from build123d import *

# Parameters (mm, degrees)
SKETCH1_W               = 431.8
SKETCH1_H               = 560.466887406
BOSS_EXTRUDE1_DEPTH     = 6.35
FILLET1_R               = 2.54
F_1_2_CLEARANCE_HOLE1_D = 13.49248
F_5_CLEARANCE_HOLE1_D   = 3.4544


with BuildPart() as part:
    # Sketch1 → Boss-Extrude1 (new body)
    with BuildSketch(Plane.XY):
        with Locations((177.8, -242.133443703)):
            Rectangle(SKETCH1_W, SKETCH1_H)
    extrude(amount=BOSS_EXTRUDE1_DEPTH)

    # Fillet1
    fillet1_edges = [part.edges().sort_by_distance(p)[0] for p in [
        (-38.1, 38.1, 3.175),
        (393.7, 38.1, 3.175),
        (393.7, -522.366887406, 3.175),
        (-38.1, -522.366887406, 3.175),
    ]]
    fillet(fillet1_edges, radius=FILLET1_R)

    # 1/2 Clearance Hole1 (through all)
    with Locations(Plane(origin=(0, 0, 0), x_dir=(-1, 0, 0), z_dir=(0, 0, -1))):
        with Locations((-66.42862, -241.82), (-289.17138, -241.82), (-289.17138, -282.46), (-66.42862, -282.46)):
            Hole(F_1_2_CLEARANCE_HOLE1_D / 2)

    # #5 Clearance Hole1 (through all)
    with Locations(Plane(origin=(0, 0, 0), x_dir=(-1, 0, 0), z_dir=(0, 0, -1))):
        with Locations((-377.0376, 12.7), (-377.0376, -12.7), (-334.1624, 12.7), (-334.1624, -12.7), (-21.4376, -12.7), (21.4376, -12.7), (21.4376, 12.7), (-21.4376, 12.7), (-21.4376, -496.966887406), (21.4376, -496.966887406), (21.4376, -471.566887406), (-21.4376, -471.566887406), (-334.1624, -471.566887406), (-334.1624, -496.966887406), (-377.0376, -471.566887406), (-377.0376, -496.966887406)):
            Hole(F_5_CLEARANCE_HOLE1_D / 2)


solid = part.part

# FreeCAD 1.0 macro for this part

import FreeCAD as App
import Part
import Sketcher
Q = App.Units.Quantity


def edges_at(feature, points):
    """Names of the edges that pass closest to the given points."""
    edges = feature.Shape.Edges
    near = lambda p: min(range(len(edges)), key=lambda i: edges[i].distToShape(Part.Vertex(*p))[0])
    return sorted({f"Edge{near(p) + 1}" for p in points})


def add_polygon(sketch, points):
    """Adds a closed chain of lines whose ends are joined by coincident constraints."""
    first, n = sketch.GeometryCount, len(points)
    for a, b in zip(points, points[1:] + points[:1]):
        sketch.addGeometry(Part.LineSegment(App.Vector(*a, 0), App.Vector(*b, 0)), False)
    for i in range(n):
        sketch.addConstraint(Sketcher.Constraint("Coincident", first + i, 2, first + (i + 1) % n, 1))

doc = App.newDocument("Part")
body = doc.addObject("PartDesign::Body", "Body")

sketch1 = body.newObject("Sketcher::SketchObject", "Sketch")
sketch1.AttachmentSupport = (doc.getObject("XY_Plane"), [""])
sketch1.MapMode = "FlatFace"
add_polygon(sketch1, [(-38, 38), (-38, -522), (394, -522), (394, 38)])
sketch1.addConstraint([
    Sketcher.Constraint("Vertical", 0),
    Sketcher.Constraint("Horizontal", 1),
    Sketcher.Constraint("Vertical", 2),
    Sketcher.Constraint("Horizontal", 3),
    Sketcher.Constraint("DistanceX", 1, 1, 1, 2, Q("17 in")),
    Sketcher.Constraint("DistanceX", 0, 2, -1, 1, Q("1.5 in")),
    Sketcher.Constraint("DistanceY", -1, 1, 2, 2, Q("1.5 in")),
    Sketcher.Constraint("DistanceY", 0, 2, 0, 1, 560.466887),
])
pad1 = body.newObject("PartDesign::Pad", "Pad")
pad1.Profile = sketch1
pad1.Length = Q("0.25 in")
doc.recompute()

fillet = body.newObject("PartDesign::Fillet", "Fillet")
fillet.Base = (pad1, edges_at(pad1, [
    (-38.1, 38.1, 3.175),
    (393.7, 38.1, 3.175),
    (393.7, -522.367, 3.175),
    (-38.1, -522.367, 3.175),
]))
fillet.Radius = Q("0.1 in")

sketch2 = body.newObject("Sketcher::SketchObject", "Sketch001")
sketch2.AttachmentSupport = (doc.getObject("XY_Plane"), [""])
sketch2.MapMode = "FlatFace"
sketch2.addGeometry([
    Part.Circle(App.Vector(66, -242, 0), App.Vector(0, 0, 1), 7),
    Part.Circle(App.Vector(289, -242, 0), App.Vector(0, 0, 1), 7),
    Part.Circle(App.Vector(289, -282, 0), App.Vector(0, 0, 1), 7),
    Part.Circle(App.Vector(66, -282, 0), App.Vector(0, 0, 1), 7),
], False)
sketch2.addConstraint([
    Sketcher.Constraint("Equal", 0, 1),
    Sketcher.Constraint("Equal", 1, 2),
    Sketcher.Constraint("Equal", 2, 3),
    Sketcher.Constraint("Horizontal", 0, 3, 1, 3),
    Sketcher.Constraint("Horizontal", 2, 3, 3, 3),
    Sketcher.Constraint("Vertical", 1, 3, 2, 3),
    Sketcher.Constraint("Vertical", 0, 3, 3, 3),
    Sketcher.Constraint("Diameter", 0, Q("0.5312 in")),
    Sketcher.Constraint("DistanceY", 2, 3, 1, 3, Q("1.6 in")),
    Sketcher.Constraint("DistanceX", -1, 1, 0, 3, Q("2.6153 in")),
    Sketcher.Constraint("DistanceX", -1, 1, 1, 3, Q("11.3847 in")),
    Sketcher.Constraint("DistanceY", 0, 3, -1, 1, 241.82),
])
doc.recompute()
hole = body.newObject("PartDesign::Hole", "Hole")
hole.Profile = sketch2
hole.ThreadType = "None"
hole.Diameter = Q("0.5312 in")
hole.DepthType = "ThroughAll"
hole.Reversed = True

sketch3 = body.newObject("Sketcher::SketchObject", "Sketch002")
sketch3.AttachmentSupport = (doc.getObject("XY_Plane"), [""])
sketch3.MapMode = "FlatFace"
sketch3.addGeometry([
    Part.Circle(App.Vector(377, 12.7, 0), App.Vector(0, 0, 1), 1.7),
    Part.Circle(App.Vector(377, -12.7, 0), App.Vector(0, 0, 1), 1.7),
    Part.Circle(App.Vector(334.2, 12.7, 0), App.Vector(0, 0, 1), 1.7),
    Part.Circle(App.Vector(334.2, -12.7, 0), App.Vector(0, 0, 1), 1.7),
    Part.Circle(App.Vector(21.4, -12.7, 0), App.Vector(0, 0, 1), 1.7),
    Part.Circle(App.Vector(-21.4, -12.7, 0), App.Vector(0, 0, 1), 1.7),
    Part.Circle(App.Vector(-21.4, 12.7, 0), App.Vector(0, 0, 1), 1.7),
    Part.Circle(App.Vector(21.4, 12.7, 0), App.Vector(0, 0, 1), 1.7),
    Part.Circle(App.Vector(21.4, -497, 0), App.Vector(0, 0, 1), 1.7),
    Part.Circle(App.Vector(-21.4, -497, 0), App.Vector(0, 0, 1), 1.7),
    Part.Circle(App.Vector(-21.4, -471.6, 0), App.Vector(0, 0, 1), 1.7),
    Part.Circle(App.Vector(21.4, -471.6, 0), App.Vector(0, 0, 1), 1.7),
    Part.Circle(App.Vector(334.2, -471.6, 0), App.Vector(0, 0, 1), 1.7),
    Part.Circle(App.Vector(334.2, -497, 0), App.Vector(0, 0, 1), 1.7),
    Part.Circle(App.Vector(377, -471.6, 0), App.Vector(0, 0, 1), 1.7),
    Part.Circle(App.Vector(377, -497, 0), App.Vector(0, 0, 1), 1.7),
], False)
sketch3.addConstraint([
    Sketcher.Constraint("Equal", 0, 1),
    Sketcher.Constraint("Equal", 1, 2),
    Sketcher.Constraint("Equal", 2, 3),
    Sketcher.Constraint("Equal", 3, 4),
    Sketcher.Constraint("Equal", 4, 5),
    Sketcher.Constraint("Equal", 5, 6),
    Sketcher.Constraint("Equal", 6, 7),
    Sketcher.Constraint("Equal", 7, 8),
    Sketcher.Constraint("Equal", 8, 9),
    Sketcher.Constraint("Equal", 9, 10),
    Sketcher.Constraint("Equal", 10, 11),
    Sketcher.Constraint("Equal", 11, 12),
    Sketcher.Constraint("Equal", 12, 13),
    Sketcher.Constraint("Equal", 13, 14),
    Sketcher.Constraint("Equal", 14, 15),
    Sketcher.Constraint("Symmetric", 4, 3, 6, 3, -1, 1),
    Sketcher.Constraint("Symmetric", 5, 3, 7, 3, -1, 1),
    Sketcher.Constraint("Symmetric", 4, 3, 5, 3, -2),
    Sketcher.Constraint("Symmetric", 8, 3, 9, 3, -2),
    Sketcher.Constraint("Symmetric", 10, 3, 11, 3, -2),
    Sketcher.Constraint("Symmetric", 0, 3, 1, 3, -1),
    Sketcher.Constraint("Symmetric", 2, 3, 3, 3, -1),
    Sketcher.Constraint("Horizontal", 0, 3, 2, 3),
    Sketcher.Constraint("Horizontal", 3, 3, 4, 3),
    Sketcher.Constraint("Horizontal", 11, 3, 12, 3),
    Sketcher.Constraint("Horizontal", 9, 3, 13, 3),
    Sketcher.Constraint("Horizontal", 12, 3, 14, 3),
    Sketcher.Constraint("Horizontal", 13, 3, 15, 3),
    Sketcher.Constraint("Vertical", 7, 3, 8, 3),
    Sketcher.Constraint("Vertical", 9, 3, 10, 3),
    Sketcher.Constraint("Vertical", 3, 3, 12, 3),
    Sketcher.Constraint("Vertical", 12, 3, 13, 3),
    Sketcher.Constraint("Vertical", 1, 3, 14, 3),
    Sketcher.Constraint("Vertical", 14, 3, 15, 3),
    Sketcher.Constraint("Diameter", 0, Q("0.136 in")),
    Sketcher.Constraint("DistanceY", 1, 3, 0, 3, Q("1 in")),
    Sketcher.Constraint("DistanceX", 4, 3, 1, 3, Q("14 in")),
    Sketcher.Constraint("DistanceX", 5, 3, 3, 3, Q("14 in")),
    Sketcher.Constraint("DistanceY", 9, 3, 10, 3, Q("1 in")),
    Sketcher.Constraint("DistanceX", -1, 1, 0, 3, Q("14.844 in")),
    Sketcher.Constraint("DistanceY", 8, 3, -1, 1, 496.966887),
])
doc.recompute()
hole2 = body.newObject("PartDesign::Hole", "Hole001")
hole2.Profile = sketch3
hole2.ThreadType = "None"
hole2.Diameter = Q("0.136 in")
hole2.DepthType = "ThroughAll"
hole2.Reversed = True

doc.recompute()
